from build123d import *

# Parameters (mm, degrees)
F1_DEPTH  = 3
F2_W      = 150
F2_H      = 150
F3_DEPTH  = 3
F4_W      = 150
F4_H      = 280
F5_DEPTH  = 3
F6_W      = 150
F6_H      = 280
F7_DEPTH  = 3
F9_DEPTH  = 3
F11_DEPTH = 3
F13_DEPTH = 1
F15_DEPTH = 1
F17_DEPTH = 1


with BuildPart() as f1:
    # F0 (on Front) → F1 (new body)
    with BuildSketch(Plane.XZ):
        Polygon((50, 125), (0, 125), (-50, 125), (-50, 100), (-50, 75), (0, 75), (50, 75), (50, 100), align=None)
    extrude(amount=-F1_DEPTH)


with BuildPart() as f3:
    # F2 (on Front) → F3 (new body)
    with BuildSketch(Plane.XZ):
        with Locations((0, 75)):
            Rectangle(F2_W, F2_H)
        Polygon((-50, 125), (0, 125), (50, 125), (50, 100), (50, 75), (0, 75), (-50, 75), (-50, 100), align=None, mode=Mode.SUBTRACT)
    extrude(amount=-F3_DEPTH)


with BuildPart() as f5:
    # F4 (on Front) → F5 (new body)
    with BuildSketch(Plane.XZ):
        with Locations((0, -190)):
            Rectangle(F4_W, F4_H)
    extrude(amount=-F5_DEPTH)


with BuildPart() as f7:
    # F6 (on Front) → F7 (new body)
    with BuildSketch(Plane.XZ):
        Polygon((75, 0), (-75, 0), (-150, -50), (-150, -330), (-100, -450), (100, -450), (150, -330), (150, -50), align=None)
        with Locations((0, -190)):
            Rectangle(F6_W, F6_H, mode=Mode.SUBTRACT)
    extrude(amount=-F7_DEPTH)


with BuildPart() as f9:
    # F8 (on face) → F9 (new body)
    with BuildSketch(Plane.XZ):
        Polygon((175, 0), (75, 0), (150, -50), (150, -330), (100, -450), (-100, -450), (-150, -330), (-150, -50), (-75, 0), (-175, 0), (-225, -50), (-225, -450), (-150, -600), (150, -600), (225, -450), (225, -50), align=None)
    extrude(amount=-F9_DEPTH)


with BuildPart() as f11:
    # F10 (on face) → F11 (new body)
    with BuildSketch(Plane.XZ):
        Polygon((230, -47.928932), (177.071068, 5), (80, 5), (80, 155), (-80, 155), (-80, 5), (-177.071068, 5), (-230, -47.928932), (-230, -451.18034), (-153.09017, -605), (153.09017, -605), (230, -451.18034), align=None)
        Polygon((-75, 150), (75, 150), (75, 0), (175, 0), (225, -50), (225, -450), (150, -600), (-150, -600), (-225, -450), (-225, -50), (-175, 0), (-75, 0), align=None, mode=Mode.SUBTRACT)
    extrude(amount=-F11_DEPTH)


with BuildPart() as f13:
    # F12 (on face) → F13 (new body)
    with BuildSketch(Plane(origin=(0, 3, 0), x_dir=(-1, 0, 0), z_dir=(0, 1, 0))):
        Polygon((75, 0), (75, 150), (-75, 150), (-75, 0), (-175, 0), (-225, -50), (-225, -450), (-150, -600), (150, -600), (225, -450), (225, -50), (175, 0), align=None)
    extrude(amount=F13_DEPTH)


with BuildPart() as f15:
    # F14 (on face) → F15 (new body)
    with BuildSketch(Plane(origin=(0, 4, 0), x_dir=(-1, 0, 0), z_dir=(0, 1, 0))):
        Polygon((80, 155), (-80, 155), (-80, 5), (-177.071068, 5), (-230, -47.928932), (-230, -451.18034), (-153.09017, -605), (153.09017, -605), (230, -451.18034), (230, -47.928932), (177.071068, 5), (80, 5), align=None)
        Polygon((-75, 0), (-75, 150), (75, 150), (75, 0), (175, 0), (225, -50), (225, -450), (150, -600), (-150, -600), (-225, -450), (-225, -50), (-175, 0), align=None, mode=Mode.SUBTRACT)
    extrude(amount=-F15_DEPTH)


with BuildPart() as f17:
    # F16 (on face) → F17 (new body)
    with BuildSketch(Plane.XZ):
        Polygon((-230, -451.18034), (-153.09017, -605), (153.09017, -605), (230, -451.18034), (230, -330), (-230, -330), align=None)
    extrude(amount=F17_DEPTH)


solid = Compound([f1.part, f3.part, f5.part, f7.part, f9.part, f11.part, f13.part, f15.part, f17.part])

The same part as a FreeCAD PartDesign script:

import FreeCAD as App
import Part
import Sketcher

V = App.Vector
Q = App.Units.Quantity


def add_polygon(sketch, points):
    """Adds a closed chain of lines whose ends are joined by coincident constraints."""
    first, n = sketch.GeometryCount, len(points)
    for a, b in zip(points, points[1:] + points[:1]):
        sketch.addGeometry(Part.LineSegment(App.Vector(*a, 0), App.Vector(*b, 0)), False)
    for i in range(n):
        sketch.addConstraint(Sketcher.Constraint("Coincident", first + i, 2, first + (i + 1) % n, 1))

doc = App.newDocument("Part")
body = doc.addObject("PartDesign::Body", "Body")

sketch1 = body.newObject("Sketcher::SketchObject", "Sketch")
sketch1.AttachmentSupport = (doc.getObject("XZ_Plane"), [""])
sketch1.MapMode = "FlatFace"
add_polygon(sketch1, [(50, 125), (-50, 125), (-50, 75), (50, 75)])
sketch1.addConstraint(Sketcher.Constraint("Horizontal", 0))
sketch1.addConstraint(Sketcher.Constraint("Vertical", 1))
sketch1.addConstraint(Sketcher.Constraint("Horizontal", 2))
sketch1.addConstraint(Sketcher.Constraint("Vertical", 3))
sketch1.addConstraint(Sketcher.Constraint("DistanceX", 0, 2, 0, 1, Q("100 mm")))
sketch1.addConstraint(Sketcher.Constraint("DistanceY", 1, 2, 1, 1, Q("50 mm")))
sketch1.addConstraint(Sketcher.Constraint("DistanceX", 0, 2, -1, 1, Q("50 mm")))
sketch1.addConstraint(Sketcher.Constraint("DistanceY", -1, 1, 0, 2, Q("125 mm")))
pad1 = body.newObject("PartDesign::Pad", "Pad")
pad1.Profile = sketch1
pad1.Length = 3
pad1.Reversed = True
body2 = doc.addObject("PartDesign::Body", "Body001")

sketch2 = body2.newObject("Sketcher::SketchObject", "Sketch001")
sketch2.AttachmentSupport = (doc.getObject("XZ_Plane001"), [""])
sketch2.MapMode = "FlatFace"
add_polygon(sketch2, [(-75, 150), (-75, 0), (75, 0), (75, 150)])
add_polygon(sketch2, [(-50, 75), (-50, 125), (50, 125), (50, 75)])
sketch2.addConstraint(Sketcher.Constraint("Vertical", 0))
sketch2.addConstraint(Sketcher.Constraint("Horizontal", 1))
sketch2.addConstraint(Sketcher.Constraint("Vertical", 2))
sketch2.addConstraint(Sketcher.Constraint("Horizontal", 3))
sketch2.addConstraint(Sketcher.Constraint("Vertical", 4))
sketch2.addConstraint(Sketcher.Constraint("Horizontal", 5))
sketch2.addConstraint(Sketcher.Constraint("Vertical", 6))
sketch2.addConstraint(Sketcher.Constraint("Horizontal", 7))
sketch2.addConstraint(Sketcher.Constraint("Symmetric", 0, 2, 1, 2, -1, 1))
sketch2.addConstraint(Sketcher.Constraint("Equal", 3, 0))
sketch2.addConstraint(Sketcher.Constraint("DistanceX", 1, 1, 1, 2, Q("150 mm")))
sketch2.addConstraint(Sketcher.Constraint("DistanceX", 5, 1, 5, 2, Q("100 mm")))
sketch2.addConstraint(Sketcher.Constraint("DistanceY", 4, 1, 4, 2, Q("50 mm")))
sketch2.addConstraint(Sketcher.Constraint("DistanceX", 4, 2, -1, 1, Q("50 mm")))
sketch2.addConstraint(Sketcher.Constraint("DistanceY", -1, 1, 4, 2, Q("125 mm")))
pad2 = body2.newObject("PartDesign::Pad", "Pad001")
pad2.Profile = sketch2
pad2.Length = 3
pad2.Reversed = True
body3 = doc.addObject("PartDesign::Body", "Body002")

sketch3 = body3.newObject("Sketcher::SketchObject", "Sketch002")
sketch3.AttachmentSupport = (doc.getObject("XZ_Plane002"), [""])
sketch3.MapMode = "FlatFace"
add_polygon(sketch3, [(-75, -50), (-75, -330), (75, -330), (75, -50)])
sketch3.addConstraint(Sketcher.Constraint("Vertical", 0))
sketch3.addConstraint(Sketcher.Constraint("Horizontal", 1))
sketch3.addConstraint(Sketcher.Constraint("Vertical", 2))
sketch3.addConstraint(Sketcher.Constraint("Horizontal", 3))
sketch3.addConstraint(Sketcher.Constraint("DistanceX", 1, 1, 1, 2, Q("150 mm")))
sketch3.addConstraint(Sketcher.Constraint("DistanceY", 0, 2, 0, 1, Q("280 mm")))
sketch3.addConstraint(Sketcher.Constraint("DistanceX", 0, 2, -1, 1, Q("75 mm")))
sketch3.addConstraint(Sketcher.Constraint("DistanceY", 0, 2, -1, 1, Q("330 mm")))
pad3 = body3.newObject("PartDesign::Pad", "Pad002")
pad3.Profile = sketch3
pad3.Length = 3
pad3.Reversed = True
body4 = doc.addObject("PartDesign::Body", "Body003")

sketch4 = body4.newObject("Sketcher::SketchObject", "Sketch003")
sketch4.AttachmentSupport = (doc.getObject("XZ_Plane003"), [""])
sketch4.MapMode = "FlatFace"
add_polygon(sketch4, [(75, 0), (-75, 0), (-150, -50), (-150, -330), (-100, -450), (100, -450), (150, -330), (150, -50)])
add_polygon(sketch4, [(75, -330), (-75, -330), (-75, -50), (75, -50)])
sketch4.addConstraint(Sketcher.Constraint("Horizontal", 0))
sketch4.addConstraint(Sketcher.Constraint("Vertical", 2))
sketch4.addConstraint(Sketcher.Constraint("Horizontal", 4))
sketch4.addConstraint(Sketcher.Constraint("Vertical", 6))
sketch4.addConstraint(Sketcher.Constraint("Horizontal", 8))
sketch4.addConstraint(Sketcher.Constraint("Vertical", 9))
sketch4.addConstraint(Sketcher.Constraint("Horizontal", 10))
sketch4.addConstraint(Sketcher.Constraint("Vertical", 11))
sketch4.addConstraint(Sketcher.Constraint("Symmetric", 0, 2, 7, 2, -1, 1))
sketch4.addConstraint(Sketcher.Constraint("Symmetric", 2, 2, 5, 2, -2))
sketch4.addConstraint(Sketcher.Constraint("Horizontal", 1, 2, 6, 2))
sketch4.addConstraint(Sketcher.Constraint("Horizontal", 5, 2, 8, 2))
sketch4.addConstraint(Sketcher.Constraint("Horizontal", 6, 2, 9, 2))
sketch4.addConstraint(Sketcher.Constraint("Vertical", 0, 2, 8, 2))
sketch4.addConstraint(Sketcher.Constraint("Vertical", 7, 2, 10, 2))
sketch4.addConstraint(Sketcher.Constraint("Equal", 3, 5))
sketch4.addConstraint(Sketcher.Constraint("DistanceX", 0, 2, 0, 1, Q("150 mm")))
sketch4.addConstraint(Sketcher.Constraint("DistanceX", 4, 1, 4, 2, Q("200 mm")))
sketch4.addConstraint(Sketcher.Constraint("DistanceY", 2, 2, 2, 1, Q("280 mm")))
sketch4.addConstraint(Sketcher.Constraint("Distance", 3, Q("130 mm")))
sketch4.addConstraint(Sketcher.Constraint("DistanceX", 1, 2, -1, 1, Q("150 mm")))
sketch4.addConstraint(Sketcher.Constraint("DistanceY", 1, 2, -1, 1, Q("50 mm")))
pad4 = body4.newObject("PartDesign::Pad", "Pad003")
pad4.Profile = sketch4
pad4.Length = 3
pad4.Reversed = True
body5 = doc.addObject("PartDesign::Body", "Body004")

sketch5 = body5.newObject("Sketcher::SketchObject", "Sketch004")
sketch5.AttachmentSupport = (doc.getObject("XZ_Plane004"), [""])
sketch5.MapMode = "FlatFace"
add_polygon(sketch5, [(175, 0), (75, 0), (150, -50), (150, -330), (100, -450), (-100, -450), (-150, -330), (-150, -50), (-75, 0), (-175, 0), (-225, -50), (-225, -450), (-150, -600), (150, -600), (225, -450), (225, -50)])
sketch5.addConstraint(Sketcher.Constraint("Horizontal", 0))
sketch5.addConstraint(Sketcher.Constraint("Vertical", 2))
sketch5.addConstraint(Sketcher.Constraint("Horizontal", 4))
sketch5.addConstraint(Sketcher.Constraint("Vertical", 6))
sketch5.addConstraint(Sketcher.Constraint("Horizontal", 8))
sketch5.addConstraint(Sketcher.Constraint("Vertical", 10))
sketch5.addConstraint(Sketcher.Constraint("Horizontal", 12))
sketch5.addConstraint(Sketcher.Constraint("Vertical", 14))
sketch5.addConstraint(Sketcher.Constraint("Symmetric", 0, 2, 7, 2, -1, 1))
sketch5.addConstraint(Sketcher.Constraint("Symmetric", 2, 2, 5, 2, -2))
sketch5.addConstraint(Sketcher.Constraint("Symmetric", 10, 2, 13, 2, -2))
sketch5.addConstraint(Sketcher.Constraint("Symmetric", 8, 2, 15, 2, -2))
sketch5.addConstraint(Sketcher.Constraint("Perpendicular", 9, 15))
sketch5.addConstraint(Sketcher.Constraint("Horizontal", 1, 2, 6, 2))
sketch5.addConstraint(Sketcher.Constraint("Horizontal", 6, 2, 9, 2))
sketch5.addConstraint(Sketcher.Constraint("Horizontal", 4, 2, 10, 2))
sketch5.addConstraint(Sketcher.Constraint("Horizontal", 9, 2, 14, 2))
sketch5.addConstraint(Sketcher.Constraint("Vertical", 6, 2, 11, 2))
sketch5.addConstraint(Sketcher.Constraint("Vertical", 2, 2, 12, 2))
sketch5.addConstraint(Sketcher.Constraint("Equal", 3, 5))
sketch5.addConstraint(Sketcher.Constraint("DistanceX", 0, 2, 0, 1, Q("100 mm")))
sketch5.addConstraint(Sketcher.Constraint("DistanceX", 4, 2, 4, 1, Q("200 mm")))
sketch5.addConstraint(Sketcher.Constraint("DistanceX", 12, 1, 12, 2, Q("300 mm")))
sketch5.addConstraint(Sketcher.Constraint("DistanceY", 2, 2, 2, 1, Q("280 mm")))
sketch5.addConstraint(Sketcher.Constraint("DistanceY", 10, 2, 10, 1, Q("400 mm")))
sketch5.addConstraint(Sketcher.Constraint("DistanceX", -1, 1, 0, 2, Q("75 mm")))
sketch5.addConstraint(Sketcher.Constraint("DistanceY", 1, 2, -1, 1, Q("50 mm")))
sketch5.addConstraint(Sketcher.Constraint("DistanceY", 11, 2, -1, 1, Q("600 mm")))
pad5 = body5.newObject("PartDesign::Pad", "Pad004")
pad5.Profile = sketch5
pad5.Length = 3
pad5.Reversed = True
body6 = doc.addObject("PartDesign::Body", "Body005")

sketch6 = body6.newObject("Sketcher::SketchObject", "Sketch005")
sketch6.AttachmentSupport = (doc.getObject("XZ_Plane005"), [""])
sketch6.MapMode = "FlatFace"
add_polygon(sketch6, [(230, -48), (177, 5), (80, 5), (80, 155), (-80, 155), (-80, 5), (-177, 5), (-230, -48), (-230, -451), (-153, -605), (153, -605), (230, -451)])
add_polygon(sketch6, [(-75, 0), (-75, 150), (75, 150), (75, 0), (175, 0), (225, -50), (225, -450), (150, -600), (-150, -600), (-225, -450), (-225, -50), (-175, 0)])
sketch6.addConstraint(Sketcher.Constraint("Horizontal", 1))
sketch6.addConstraint(Sketcher.Constraint("Vertical", 2))
sketch6.addConstraint(Sketcher.Constraint("Horizontal", 3))
sketch6.addConstraint(Sketcher.Constraint("Vertical", 4))
sketch6.addConstraint(Sketcher.Constraint("Horizontal", 5))
sketch6.addConstraint(Sketcher.Constraint("Vertical", 7))
sketch6.addConstraint(Sketcher.Constraint("Horizontal", 9))
sketch6.addConstraint(Sketcher.Constraint("Vertical", 11))
sketch6.addConstraint(Sketcher.Constraint("Vertical", 12))
sketch6.addConstraint(Sketcher.Constraint("Horizontal", 13))
sketch6.addConstraint(Sketcher.Constraint("Vertical", 14))
sketch6.addConstraint(Sketcher.Constraint("Horizontal", 15))
sketch6.addConstraint(Sketcher.Constraint("Vertical", 17))
sketch6.addConstraint(Sketcher.Constraint("Horizontal", 19))
sketch6.addConstraint(Sketcher.Constraint("Vertical", 21))
sketch6.addConstraint(Sketcher.Constraint("Horizontal", 23))
sketch6.addConstraint(Sketcher.Constraint("Symmetric", 15, 2, 22, 2, -1, 1))
sketch6.addConstraint(Sketcher.Constraint("Symmetric", 1, 2, 4, 2, -2))
sketch6.addConstraint(Sketcher.Constraint("Symmetric", 7, 2, 10, 2, -2))
sketch6.addConstraint(Sketcher.Constraint("Symmetric", 17, 2, 20, 2, -2))
sketch6.addConstraint(Sketcher.Constraint("Symmetric", 14, 2, 23, 2, -2))
sketch6.addConstraint(Sketcher.Constraint("Perpendicular", 0, 6))
sketch6.addConstraint(Sketcher.Constraint("Perpendicular", 6, 16))
sketch6.addConstraint(Sketcher.Constraint("Parallel", 10, 18))
sketch6.addConstraint(Sketcher.Constraint("Parallel", 8, 20))
sketch6.addConstraint(Sketcher.Constraint("Perpendicular", 16, 22))
sketch6.addConstraint(Sketcher.Constraint("Horizontal", 6, 2, 11, 2))
sketch6.addConstraint(Sketcher.Constraint("Horizontal", 16, 2, 21, 2))
sketch6.addConstraint(Sketcher.Constraint("Equal", 13, 2))
sketch6.addConstraint(Sketcher.Constraint("Equal", 4, 12))
sketch6.addConstraint(Sketcher.Constraint("Equal", 8, 10))
sketch6.addConstraint(Sketcher.Constraint("DistanceX", 3, 2, 3, 1, Q("160 mm")))
sketch6.addConstraint(Sketcher.Constraint("DistanceX", 13, 1, 13, 2, Q("150 mm")))
sketch6.addConstraint(Sketcher.Constraint("DistanceX", 15, 1, 15, 2, Q("100 mm")))
sketch6.addConstraint(Sketcher.Constraint("DistanceX", 19, 2, 19, 1, Q("300 mm")))
sketch6.addConstraint(Sketcher.Constraint("DistanceY", 17, 2, 17, 1, Q("400 mm")))
sketch6.addConstraint(Sketcher.Constraint("DistanceY", -1, 1, 0, 2, Q("5 mm")))
sketch6.addConstraint(Sketcher.Constraint("DistanceX", 6, 2, -1, 1, Q("230 mm")))
sketch6.addConstraint(Sketcher.Constraint("DistanceY", 8, 2, -1, 1, Q("605 mm")))
sketch6.addConstraint(Sketcher.Constraint("DistanceX", -1, 1, 16, 2, Q("225 mm")))
sketch6.addConstraint(Sketcher.Constraint("DistanceY", 18, 2, -1, 1, Q("600 mm")))
sketch6.addConstraint(Sketcher.Constraint("DistanceX", 9, 1, 9, 2, Q("306.18034 mm")))
sketch6.addConstraint(Sketcher.Constraint("DistanceX", 1, 2, 1, 1, Q("97.071068 mm")))
pad6 = body6.newObject("PartDesign::Pad", "Pad005")
pad6.Profile = sketch6
pad6.Length = 3
pad6.Reversed = True
body7 = doc.addObject("PartDesign::Body", "Body006")

sketch7 = body7.newObject("Sketcher::SketchObject", "Sketch006")
sketch7.AttachmentSupport = (doc.getObject("XZ_Plane006"), [""])
sketch7.MapMode = "FlatFace"
sketch7.AttachmentOffset = App.Placement(V(0, 0, -3), App.Rotation())
add_polygon(sketch7, [(-75, 0), (-75, 150), (75, 150), (75, 0), (175, 0), (225, -50), (225, -450), (150, -600), (-150, -600), (-225, -450), (-225, -50), (-175, 0)])
sketch7.addConstraint(Sketcher.Constraint("Vertical", 0))
sketch7.addConstraint(Sketcher.Constraint("Horizontal", 1))
sketch7.addConstraint(Sketcher.Constraint("Vertical", 2))
sketch7.addConstraint(Sketcher.Constraint("Horizontal", 3))
sketch7.addConstraint(Sketcher.Constraint("Vertical", 5))
sketch7.addConstraint(Sketcher.Constraint("Horizontal", 7))
sketch7.addConstraint(Sketcher.Constraint("Vertical", 9))
sketch7.addConstraint(Sketcher.Constraint("Horizontal", 11))
sketch7.addConstraint(Sketcher.Constraint("Symmetric", 3, 2, 10, 2, -1, 1))
sketch7.addConstraint(Sketcher.Constraint("Symmetric", 5, 2, 8, 2, -2))
sketch7.addConstraint(Sketcher.Constraint("Symmetric", 2, 2, 11, 2, -2))
sketch7.addConstraint(Sketcher.Constraint("Perpendicular", 4, 10))
sketch7.addConstraint(Sketcher.Constraint("Horizontal", 4, 2, 9, 2))
sketch7.addConstraint(Sketcher.Constraint("Equal", 1, 0))
sketch7.addConstraint(Sketcher.Constraint("Equal", 6, 8))
sketch7.addConstraint(Sketcher.Constraint("DistanceX", 1, 1, 1, 2, Q("150 mm")))
sketch7.addConstraint(Sketcher.Constraint("DistanceX", 3, 1, 3, 2, Q("100 mm")))
sketch7.addConstraint(Sketcher.Constraint("DistanceX", 7, 2, 7, 1, Q("300 mm")))
sketch7.addConstraint(Sketcher.Constraint("DistanceY", 5, 2, 5, 1, Q("400 mm")))
sketch7.addConstraint(Sketcher.Constraint("DistanceX", -1, 1, 4, 2, Q("225 mm")))
sketch7.addConstraint(Sketcher.Constraint("DistanceY", 6, 2, -1, 1, Q("600 mm")))
pad7 = body7.newObject("PartDesign::Pad", "Pad006")
pad7.Profile = sketch7
pad7.Length = 1
pad7.Reversed = True
body8 = doc.addObject("PartDesign::Body", "Body007")

sketch8 = body8.newObject("Sketcher::SketchObject", "Sketch007")
sketch8.AttachmentSupport = (doc.getObject("XZ_Plane007"), [""])
sketch8.MapMode = "FlatFace"
sketch8.AttachmentOffset = App.Placement(V(0, 0, -4), App.Rotation())
add_polygon(sketch8, [(-80, 155), (80, 155), (80, 5), (177, 5), (230, -48), (230, -451), (153, -605), (-153, -605), (-230, -451), (-230, -48), (-177, 5), (-80, 5)])
add_polygon(sketch8, [(175, 0), (75, 0), (75, 150), (-75, 150), (-75, 0), (-175, 0), (-225, -50), (-225, -450), (-150, -600), (150, -600), (225, -450), (225, -50)])
sketch8.addConstraint(Sketcher.Constraint("Horizontal", 0))
sketch8.addConstraint(Sketcher.Constraint("Vertical", 1))
sketch8.addConstraint(Sketcher.Constraint("Horizontal", 2))
sketch8.addConstraint(Sketcher.Constraint("Vertical", 4))
sketch8.addConstraint(Sketcher.Constraint("Horizontal", 6))
sketch8.addConstraint(Sketcher.Constraint("Vertical", 8))
sketch8.addConstraint(Sketcher.Constraint("Horizontal", 10))
sketch8.addConstraint(Sketcher.Constraint("Vertical", 11))
sketch8.addConstraint(Sketcher.Constraint("Horizontal", 12))
sketch8.addConstraint(Sketcher.Constraint("Vertical", 13))
sketch8.addConstraint(Sketcher.Constraint("Horizontal", 14))
sketch8.addConstraint(Sketcher.Constraint("Vertical", 15))
sketch8.addConstraint(Sketcher.Constraint("Horizontal", 16))
sketch8.addConstraint(Sketcher.Constraint("Vertical", 18))
sketch8.addConstraint(Sketcher.Constraint("Horizontal", 20))
sketch8.addConstraint(Sketcher.Constraint("Vertical", 22))
sketch8.addConstraint(Sketcher.Constraint("Symmetric", 12, 2, 15, 2, -1, 1))
sketch8.addConstraint(Sketcher.Constraint("Symmetric", 4, 2, 7, 2, -2))
sketch8.addConstraint(Sketcher.Constraint("Symmetric", 2, 2, 9, 2, -2))
sketch8.addConstraint(Sketcher.Constraint("Symmetric", 18, 2, 21, 2, -2))
sketch8.addConstraint(Sketcher.Constraint("Symmetric", 16, 2, 23, 2, -2))
sketch8.addConstraint(Sketcher.Constraint("Perpendicular", 3, 9))
sketch8.addConstraint(Sketcher.Constraint("Parallel", 9, 17))
sketch8.addConstraint(Sketcher.Constraint("Parallel", 7, 19))
sketch8.addConstraint(Sketcher.Constraint("Parallel", 5, 21))
sketch8.addConstraint(Sketcher.Constraint("Perpendicular", 17, 23))
sketch8.addConstraint(Sketcher.Constraint("Horizontal", 3, 2, 8, 2))
sketch8.addConstraint(Sketcher.Constraint("Equal", 2, 10))
sketch8.addConstraint(Sketcher.Constraint("Equal", 14, 1))
sketch8.addConstraint(Sketcher.Constraint("Equal", 11, 13))
sketch8.addConstraint(Sketcher.Constraint("Equal", 5, 7))
sketch8.addConstraint(Sketcher.Constraint("DistanceX", 0, 1, 0, 2, Q("160 mm")))
sketch8.addConstraint(Sketcher.Constraint("DistanceX", 12, 2, 12, 1, Q("100 mm")))
sketch8.addConstraint(Sketcher.Constraint("DistanceX", 14, 2, 14, 1, Q("150 mm")))
sketch8.addConstraint(Sketcher.Constraint("DistanceX", 20, 1, 20, 2, Q("300 mm")))
sketch8.addConstraint(Sketcher.Constraint("DistanceY", 18, 2, 18, 1, Q("400 mm")))
sketch8.addConstraint(Sketcher.Constraint("DistanceY", -1, 1, 0, 2, Q("155 mm")))
sketch8.addConstraint(Sketcher.Constraint("DistanceX", -1, 1, 3, 2, Q("230 mm")))
sketch8.addConstraint(Sketcher.Constraint("DistanceY", 5, 2, -1, 1, Q("605 mm")))
sketch8.addConstraint(Sketcher.Constraint("DistanceX", 17, 2, -1, 1, Q("225 mm")))
sketch8.addConstraint(Sketcher.Constraint("DistanceY", 19, 2, -1, 1, Q("600 mm")))
sketch8.addConstraint(Sketcher.Constraint("DistanceX", 6, 2, 6, 1, Q("306.18034 mm")))
sketch8.addConstraint(Sketcher.Constraint("DistanceX", 2, 1, 2, 2, Q("97.071068 mm")))
pad8 = body8.newObject("PartDesign::Pad", "Pad007")
pad8.Profile = sketch8
pad8.Length = 1
body9 = doc.addObject("PartDesign::Body", "Body008")

sketch9 = body9.newObject("Sketcher::SketchObject", "Sketch008")
sketch9.AttachmentSupport = (doc.getObject("XZ_Plane008"), [""])
sketch9.MapMode = "FlatFace"
add_polygon(sketch9, [(-230, -451), (-153, -605), (153, -605), (230, -451), (230, -330), (-230, -330)])
sketch9.addConstraint(Sketcher.Constraint("Horizontal", 1))
sketch9.addConstraint(Sketcher.Constraint("Vertical", 3))
sketch9.addConstraint(Sketcher.Constraint("Horizontal", 4))
sketch9.addConstraint(Sketcher.Constraint("Vertical", 5))
sketch9.addConstraint(Sketcher.Constraint("Symmetric", 2, 2, 5, 2, -2))
sketch9.addConstraint(Sketcher.Constraint("Equal", 0, 2))
sketch9.addConstraint(Sketcher.Constraint("DistanceX", 4, 2, 4, 1, Q("460 mm")))
sketch9.addConstraint(Sketcher.Constraint("DistanceY", 0, 2, -1, 1, Q("605 mm")))
sketch9.addConstraint(Sketcher.Constraint("DistanceY", 3, 2, -1, 1, Q("330 mm")))
sketch9.addConstraint(Sketcher.Constraint("DistanceX", 1, 1, 1, 2, Q("306.18034 mm")))
sketch9.addConstraint(Sketcher.Constraint("DistanceY", 3, 1, 3, 2, Q("121.18034 mm")))
pad9 = body9.newObject("PartDesign::Pad", "Pad008")
pad9.Profile = sketch9
pad9.Length = 1

doc.recompute()
